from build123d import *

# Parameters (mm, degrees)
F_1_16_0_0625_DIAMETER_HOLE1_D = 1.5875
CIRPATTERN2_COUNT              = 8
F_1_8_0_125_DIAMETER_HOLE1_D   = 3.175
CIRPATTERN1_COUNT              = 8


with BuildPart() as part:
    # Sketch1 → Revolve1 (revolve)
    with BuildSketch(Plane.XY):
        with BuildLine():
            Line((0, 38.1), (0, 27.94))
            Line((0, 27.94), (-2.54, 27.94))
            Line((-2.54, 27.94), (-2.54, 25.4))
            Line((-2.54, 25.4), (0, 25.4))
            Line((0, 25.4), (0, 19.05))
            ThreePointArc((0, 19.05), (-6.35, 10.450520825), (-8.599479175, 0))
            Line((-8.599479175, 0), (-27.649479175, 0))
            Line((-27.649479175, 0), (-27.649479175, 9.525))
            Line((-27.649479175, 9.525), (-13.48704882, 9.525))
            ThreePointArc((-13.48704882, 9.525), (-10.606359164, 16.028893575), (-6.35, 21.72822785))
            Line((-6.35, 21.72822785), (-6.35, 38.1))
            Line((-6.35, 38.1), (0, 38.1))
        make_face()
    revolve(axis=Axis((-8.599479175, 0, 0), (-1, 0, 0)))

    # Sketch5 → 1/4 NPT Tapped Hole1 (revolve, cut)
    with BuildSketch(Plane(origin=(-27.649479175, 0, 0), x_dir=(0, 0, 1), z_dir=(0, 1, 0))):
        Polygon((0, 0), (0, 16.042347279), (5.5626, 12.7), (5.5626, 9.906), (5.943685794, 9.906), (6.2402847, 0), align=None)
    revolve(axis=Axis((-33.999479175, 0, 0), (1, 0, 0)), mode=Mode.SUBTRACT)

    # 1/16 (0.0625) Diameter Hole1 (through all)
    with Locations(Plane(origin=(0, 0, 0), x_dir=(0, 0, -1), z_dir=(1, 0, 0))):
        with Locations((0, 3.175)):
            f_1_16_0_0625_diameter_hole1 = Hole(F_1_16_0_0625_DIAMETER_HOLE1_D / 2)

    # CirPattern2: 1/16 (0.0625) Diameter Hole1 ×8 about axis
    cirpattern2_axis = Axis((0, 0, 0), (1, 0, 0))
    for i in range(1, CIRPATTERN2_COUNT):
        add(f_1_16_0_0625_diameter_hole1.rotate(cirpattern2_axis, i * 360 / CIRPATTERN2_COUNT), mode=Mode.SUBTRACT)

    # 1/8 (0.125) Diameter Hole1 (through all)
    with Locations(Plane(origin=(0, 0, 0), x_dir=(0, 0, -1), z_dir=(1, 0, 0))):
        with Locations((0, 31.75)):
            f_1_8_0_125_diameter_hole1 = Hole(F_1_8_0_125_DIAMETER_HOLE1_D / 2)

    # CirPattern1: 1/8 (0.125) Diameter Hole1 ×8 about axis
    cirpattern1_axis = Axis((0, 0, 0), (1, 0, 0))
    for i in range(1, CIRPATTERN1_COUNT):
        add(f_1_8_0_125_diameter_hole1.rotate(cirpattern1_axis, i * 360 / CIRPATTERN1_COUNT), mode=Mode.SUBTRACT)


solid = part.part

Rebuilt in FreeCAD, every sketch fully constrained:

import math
import FreeCAD as App
import Part
import Sketcher
from FreeCAD import Vector
Q = App.Units.Quantity

doc = App.newDocument("Part")
params = doc.addObject("Spreadsheet::Sheet", "Params")
for row, (alias, value) in enumerate([
    ("sketch1_radius", "1 in"),
    ("sketch1_radius2", "1.25 in"),
    ("sketch1_width", "0.1 in"),
    ("sketch1_height", "0.4 in"),
    ("sketch1_width2", "0.25 in"),
    ("revolution_angle", "360 deg"),
    ("sketch2_width", "0.11 in"),
    ("groove_angle", "360 deg"),
    ("sketch3_diameter", "0.0625 in"),
    ("hole_diameter", "0.0625 in"),
    ("sketch4_diameter", "0.125 in"),
    ("hole2_diameter", "0.125 in"),
], start=1):
    params.set(f"A{row}", alias)
    params.set(f"B{row}", "=" + value)
    params.setAlias(f"B{row}", alias)

body = doc.addObject("PartDesign::Body", "Body")

# Sketch on XY plane
sketch1 = body.newObject("Sketcher::SketchObject", "Sketch")
sketch1.AttachmentSupport = (doc.getObject("XY_Plane"), [""])
sketch1.MapMode = "FlatFace"
sketch1.addGeometry(Part.LineSegment(Vector(0, 27.9, 0), Vector(0, 38.1, 0)), False)
sketch1.addGeometry(Part.LineSegment(Vector(0, 38.1, 0), Vector(-6.3, 38.1, 0)), False)
sketch1.addGeometry(Part.LineSegment(Vector(-6.3, 38.1, 0), Vector(-6.3, 21.7, 0)), False)
sketch1.addGeometry(Part.ArcOfCircle(Part.Circle(Vector(16.8, 0, 0), Vector(0, 0, 1), 31.8), math.radians(137), math.radians(163)), False)
sketch1.addGeometry(Part.LineSegment(Vector(-13.5, 9.5, 0), Vector(-27.6, 9.5, 0)), False)
sketch1.addGeometry(Part.LineSegment(Vector(-27.6, 9.5, 0), Vector(-27.6, 0, 0)), False)
sketch1.addGeometry(Part.LineSegment(Vector(-27.6, 0, 0), Vector(-8.6, 0, 0)), False)
sketch1.addGeometry(Part.ArcOfCircle(Part.Circle(Vector(16.8, 0, 0), Vector(0, 0, 1), 25.4), math.radians(131), math.radians(180)), False)
sketch1.addGeometry(Part.LineSegment(Vector(0, 19.1, 0), Vector(0, 25.4, 0)), False)
sketch1.addGeometry(Part.LineSegment(Vector(0, 25.4, 0), Vector(-2.5, 25.4, 0)), False)
sketch1.addGeometry(Part.LineSegment(Vector(-2.5, 25.4, 0), Vector(-2.5, 27.9, 0)), False)
sketch1.addGeometry(Part.LineSegment(Vector(-2.5, 27.9, 0), Vector(0, 27.9, 0)), False)
sketch1.addConstraint(Sketcher.Constraint("Coincident", 0, 2, 1, 1))
sketch1.addConstraint(Sketcher.Constraint("Coincident", 1, 2, 2, 1))
sketch1.addConstraint(Sketcher.Constraint("Coincident", 2, 2, 3, 1))
sketch1.addConstraint(Sketcher.Constraint("Coincident", 3, 2, 4, 1))
sketch1.addConstraint(Sketcher.Constraint("Coincident", 4, 2, 5, 1))
sketch1.addConstraint(Sketcher.Constraint("Coincident", 5, 2, 6, 1))
sketch1.addConstraint(Sketcher.Constraint("Coincident", 6, 2, 7, 2))
sketch1.addConstraint(Sketcher.Constraint("Coincident", 7, 1, 8, 1))
sketch1.addConstraint(Sketcher.Constraint("Coincident", 8, 2, 9, 1))
sketch1.addConstraint(Sketcher.Constraint("Coincident", 9, 2, 10, 1))
sketch1.addConstraint(Sketcher.Constraint("Coincident", 10, 2, 11, 1))
sketch1.addConstraint(Sketcher.Constraint("Coincident", 11, 2, 0, 1))
sketch1.addConstraint(Sketcher.Constraint("Vertical", 0))
sketch1.addConstraint(Sketcher.Constraint("Horizontal", 1))
sketch1.addConstraint(Sketcher.Constraint("Vertical", 2))
sketch1.addConstraint(Sketcher.Constraint("Horizontal", 4))
sketch1.addConstraint(Sketcher.Constraint("Vertical", 5))
sketch1.addConstraint(Sketcher.Constraint("Horizontal", 6))
sketch1.addConstraint(Sketcher.Constraint("Vertical", 8))
sketch1.addConstraint(Sketcher.Constraint("Horizontal", 9))
sketch1.addConstraint(Sketcher.Constraint("Vertical", 10))
sketch1.addConstraint(Sketcher.Constraint("Horizontal", 11))
sketch1.addConstraint(Sketcher.Constraint("Coincident", 7, 3, 3, 3))
sketch1.addConstraint(Sketcher.Constraint("PointOnObject", 3, 3, -1))
sketch1.addConstraint(Sketcher.Constraint("PointOnObject", 0, 2, -2))
sketch1.addConstraint(Sketcher.Constraint("PointOnObject", 5, 2, -1))
sketch1.addConstraint(Sketcher.Constraint("PointOnObject", 7, 1, -2))
sketch1.addConstraint(Sketcher.Constraint("Equal", 1, 8))
sketch1.addConstraint(Sketcher.Constraint("Equal", 11, 10))
sketch1.addConstraint(Sketcher.Constraint("Radius", 7, Q("1 in")))
sketch1.addConstraint(Sketcher.Constraint("Radius", 3, Q("1.25 in")))
sketch1.addConstraint(Sketcher.Constraint("DistanceX", 9, 2, 9, 1, Q("0.1 in")))
sketch1.addConstraint(Sketcher.Constraint("DistanceY", 0, 1, 0, 2, Q("0.4 in")))
sketch1.addConstraint(Sketcher.Constraint("DistanceY", -1, 1, 8, 2, Q("1 in")))
sketch1.addConstraint(Sketcher.Constraint("DistanceX", 1, 2, 1, 1, Q("0.25 in")))
sketch1.addConstraint(Sketcher.Constraint("DistanceX", 6, 1, 6, 2, Q("0.75 in")))
sketch1.addConstraint(Sketcher.Constraint("DistanceY", 5, 2, 5, 1, Q("0.375 in")))
sketch1.setExpression("Constraints[29]", "Params.sketch1_radius")
sketch1.setExpression("Constraints[30]", "Params.sketch1_radius2")
sketch1.setExpression("Constraints[31]", "Params.sketch1_width")
sketch1.setExpression("Constraints[32]", "Params.sketch1_height")
sketch1.setExpression("Constraints[34]", "Params.sketch1_width2")
revolution = body.newObject("PartDesign::Revolution", "Revolution")
revolution.Profile = sketch1
revolution.ReferenceAxis = (sketch1, ["H_Axis"])
revolution.setExpression("Angle", "Params.revolution_angle")

# Sketch on XZ plane
sketch2 = body.newObject("Sketcher::SketchObject", "Sketch001")
sketch2.AttachmentSupport = (doc.getObject("XZ_Plane"), [""])
sketch2.MapMode = "FlatFace"
sketch2.addGeometry(Part.LineSegment(Vector(-11.61, 0, 0), Vector(-27.65, 0, 0)), False)
sketch2.addGeometry(Part.LineSegment(Vector(-27.65, 0, 0), Vector(-27.65, 6.24, 0)), False)
sketch2.addGeometry(Part.LineSegment(Vector(-27.65, 6.24, 0), Vector(-17.74, 5.94, 0)), False)
sketch2.addGeometry(Part.LineSegment(Vector(-17.74, 5.94, 0), Vector(-17.74, 5.56, 0)), False)
sketch2.addGeometry(Part.LineSegment(Vector(-17.74, 5.56, 0), Vector(-14.95, 5.56, 0)), False)
sketch2.addGeometry(Part.LineSegment(Vector(-14.95, 5.56, 0), Vector(-11.61, 0, 0)), False)
sketch2.addConstraint(Sketcher.Constraint("Coincident", 0, 2, 1, 1))
sketch2.addConstraint(Sketcher.Constraint("Coincident", 1, 2, 2, 1))
sketch2.addConstraint(Sketcher.Constraint("Coincident", 2, 2, 3, 1))
sketch2.addConstraint(Sketcher.Constraint("Coincident", 3, 2, 4, 1))
sketch2.addConstraint(Sketcher.Constraint("Coincident", 4, 2, 5, 1))
sketch2.addConstraint(Sketcher.Constraint("Coincident", 5, 2, 0, 1))
sketch2.addConstraint(Sketcher.Constraint("Horizontal", 0))
sketch2.addConstraint(Sketcher.Constraint("Vertical", 1))
sketch2.addConstraint(Sketcher.Constraint("Vertical", 3))
sketch2.addConstraint(Sketcher.Constraint("Horizontal", 4))
sketch2.addConstraint(Sketcher.Constraint("PointOnObject", 0, 2, -1))
sketch2.addConstraint(Sketcher.Constraint("Angle", 5, Q("-59 deg")))
sketch2.addConstraint(Sketcher.Constraint("DistanceX", 4, 1, 4, 2, Q("0.11 in")))
sketch2.addConstraint(Sketcher.Constraint("DistanceX", 1, 2, 4, 2, Q("0.5 in")))
sketch2.addConstraint(Sketcher.Constraint("DistanceY", -1, 1, 3, 2, Q("0.219 in")))
sketch2.addConstraint(Sketcher.Constraint("DistanceY", 2, 2, 1, 2, 0.296599))
sketch2.addConstraint(Sketcher.Constraint("DistanceY", 1, 1, 1, 2, 6.240285))
sketch2.addConstraint(Sketcher.Constraint("DistanceX", 0, 2, -1, 1, 27.649479))
sketch2.setExpression("Constraints[12]", "Params.sketch2_width")
groove = body.newObject("PartDesign::Groove", "Groove")
groove.Profile = sketch2
groove.ReferenceAxis = (sketch2, ["H_Axis"])
groove.setExpression("Angle", "Params.groove_angle")

# Sketch on YZ plane
sketch3 = body.newObject("Sketcher::SketchObject", "Sketch002")
sketch3.AttachmentSupport = (doc.getObject("YZ_Plane"), [""])
sketch3.MapMode = "FlatFace"
sketch3.addGeometry(Part.Circle(Vector(3.2, 0, 0), Vector(0, 0, 1), 0.8), False)
sketch3.addConstraint(Sketcher.Constraint("PointOnObject", 0, 3, -1))
sketch3.addConstraint(Sketcher.Constraint("Diameter", 0, Q("0.0625 in")))
sketch3.addConstraint(Sketcher.Constraint("DistanceX", -1, 1, 0, 3, Q("0.125 in")))
sketch3.setExpression("Constraints[1]", "Params.sketch3_diameter")
doc.recompute()
hole = body.newObject("PartDesign::Hole", "Hole")
hole.Profile = sketch3
hole.ThreadType = "None"
hole.setExpression("Diameter", "Params.hole_diameter")
hole.DepthType = "ThroughAll"
doc.recompute()

polarpattern = body.newObject("PartDesign::PolarPattern", "PolarPattern")
polarpattern.Originals = [hole]
polarpattern.Axis = (doc.getObject("X_Axis"), [""])
polarpattern.Angle = 360
polarpattern.Occurrences = 8
body.Tip = polarpattern

# Sketch on YZ plane
sketch4 = body.newObject("Sketcher::SketchObject", "Sketch003")
sketch4.AttachmentSupport = (doc.getObject("YZ_Plane"), [""])
sketch4.MapMode = "FlatFace"
sketch4.addGeometry(Part.Circle(Vector(31.8, 0, 0), Vector(0, 0, 1), 1.6), False)
sketch4.addConstraint(Sketcher.Constraint("PointOnObject", 0, 3, -1))
sketch4.addConstraint(Sketcher.Constraint("Diameter", 0, Q("0.125 in")))
sketch4.addConstraint(Sketcher.Constraint("DistanceX", -1, 1, 0, 3, Q("1.25 in")))
sketch4.setExpression("Constraints[1]", "Params.sketch4_diameter")
doc.recompute()
hole2 = body.newObject("PartDesign::Hole", "Hole001")
hole2.Profile = sketch4
hole2.ThreadType = "None"
hole2.setExpression("Diameter", "Params.hole2_diameter")
hole2.DepthType = "ThroughAll"
doc.recompute()

polarpattern2 = body.newObject("PartDesign::PolarPattern", "PolarPattern001")
polarpattern2.Originals = [hole2]
polarpattern2.Axis = (doc.getObject("X_Axis"), [""])
polarpattern2.Angle = 360
polarpattern2.Occurrences = 8
body.Tip = polarpattern2

doc.recompute()
